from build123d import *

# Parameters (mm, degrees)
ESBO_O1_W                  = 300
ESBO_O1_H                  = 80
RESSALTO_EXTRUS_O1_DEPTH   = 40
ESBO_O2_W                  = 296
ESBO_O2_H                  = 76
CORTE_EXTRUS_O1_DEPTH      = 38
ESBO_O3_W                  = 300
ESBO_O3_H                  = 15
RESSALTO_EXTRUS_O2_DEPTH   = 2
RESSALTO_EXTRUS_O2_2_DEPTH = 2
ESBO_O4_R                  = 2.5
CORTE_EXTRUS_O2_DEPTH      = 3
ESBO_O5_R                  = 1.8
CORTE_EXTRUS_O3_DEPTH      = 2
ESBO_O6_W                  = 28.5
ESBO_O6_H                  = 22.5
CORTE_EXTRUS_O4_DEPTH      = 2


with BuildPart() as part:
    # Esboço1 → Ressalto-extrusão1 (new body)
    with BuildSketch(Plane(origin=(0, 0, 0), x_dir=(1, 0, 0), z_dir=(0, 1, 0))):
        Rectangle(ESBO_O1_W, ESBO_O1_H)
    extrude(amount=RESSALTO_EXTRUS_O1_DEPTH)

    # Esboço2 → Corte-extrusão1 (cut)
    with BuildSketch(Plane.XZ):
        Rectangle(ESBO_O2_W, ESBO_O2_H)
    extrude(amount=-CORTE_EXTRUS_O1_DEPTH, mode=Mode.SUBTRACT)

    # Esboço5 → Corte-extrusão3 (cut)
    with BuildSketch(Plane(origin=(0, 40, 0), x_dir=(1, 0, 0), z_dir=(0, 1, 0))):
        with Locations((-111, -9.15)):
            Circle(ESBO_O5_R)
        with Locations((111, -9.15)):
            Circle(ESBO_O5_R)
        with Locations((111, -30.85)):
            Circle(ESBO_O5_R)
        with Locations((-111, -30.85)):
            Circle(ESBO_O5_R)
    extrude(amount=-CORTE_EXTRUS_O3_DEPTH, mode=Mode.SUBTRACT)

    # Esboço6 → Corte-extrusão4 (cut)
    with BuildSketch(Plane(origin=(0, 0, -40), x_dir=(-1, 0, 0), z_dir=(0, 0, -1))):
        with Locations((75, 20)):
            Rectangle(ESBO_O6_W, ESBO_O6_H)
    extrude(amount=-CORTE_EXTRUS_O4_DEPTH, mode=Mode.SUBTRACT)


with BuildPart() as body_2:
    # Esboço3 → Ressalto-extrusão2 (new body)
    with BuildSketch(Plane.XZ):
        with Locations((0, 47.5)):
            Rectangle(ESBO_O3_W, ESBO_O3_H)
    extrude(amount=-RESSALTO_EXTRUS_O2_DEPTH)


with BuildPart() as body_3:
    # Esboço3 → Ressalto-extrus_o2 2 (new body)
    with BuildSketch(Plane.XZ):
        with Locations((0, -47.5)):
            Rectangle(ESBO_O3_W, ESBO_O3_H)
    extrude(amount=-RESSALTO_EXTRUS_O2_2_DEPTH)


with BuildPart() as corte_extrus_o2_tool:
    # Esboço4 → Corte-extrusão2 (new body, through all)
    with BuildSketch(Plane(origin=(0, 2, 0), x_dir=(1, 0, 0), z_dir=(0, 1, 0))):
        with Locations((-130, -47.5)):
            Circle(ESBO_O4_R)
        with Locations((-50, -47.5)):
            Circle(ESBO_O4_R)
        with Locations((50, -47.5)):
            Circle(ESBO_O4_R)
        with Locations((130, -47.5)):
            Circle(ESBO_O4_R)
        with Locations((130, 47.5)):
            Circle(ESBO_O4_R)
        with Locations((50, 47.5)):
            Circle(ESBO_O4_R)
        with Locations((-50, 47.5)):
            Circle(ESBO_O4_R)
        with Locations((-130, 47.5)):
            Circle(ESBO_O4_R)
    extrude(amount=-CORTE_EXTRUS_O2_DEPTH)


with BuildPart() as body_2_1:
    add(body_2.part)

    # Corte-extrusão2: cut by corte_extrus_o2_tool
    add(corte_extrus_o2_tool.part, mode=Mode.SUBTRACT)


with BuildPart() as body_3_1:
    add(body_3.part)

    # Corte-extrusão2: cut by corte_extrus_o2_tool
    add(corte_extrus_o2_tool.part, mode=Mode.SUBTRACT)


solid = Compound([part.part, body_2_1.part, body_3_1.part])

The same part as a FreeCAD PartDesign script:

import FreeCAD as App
import Part
import Sketcher

doc = App.newDocument("Part")
body = doc.addObject("PartDesign::Body", "Body")

sketch1 = doc.addObject("Sketcher::SketchObject", "Sketch")
body.addObject(sketch1)
sketch1.AttachmentSupport = (doc.XZ_Plane, [""])
sketch1.MapMode = "FlatFace"
sketch1.addGeometry(Part.LineSegment(App.Vector(-150, -40, 0), App.Vector(-150, 40, 0)), False)
sketch1.addGeometry(Part.LineSegment(App.Vector(-150, 40, 0), App.Vector(150, 40, 0)), False)
sketch1.addGeometry(Part.LineSegment(App.Vector(150, 40, 0), App.Vector(150, -40, 0)), False)
sketch1.addGeometry(Part.LineSegment(App.Vector(150, -40, 0), App.Vector(-150, -40, 0)), False)
sketch1.addConstraint(Sketcher.Constraint("Coincident", 0, 2, 1, 1))
sketch1.addConstraint(Sketcher.Constraint("Coincident", 1, 2, 2, 1))
sketch1.addConstraint(Sketcher.Constraint("Coincident", 2, 2, 3, 1))
sketch1.addConstraint(Sketcher.Constraint("Coincident", 3, 2, 0, 1))
sketch1.addConstraint(Sketcher.Constraint("Vertical", 0))
sketch1.addConstraint(Sketcher.Constraint("Horizontal", 1))
sketch1.addConstraint(Sketcher.Constraint("Vertical", 2))
sketch1.addConstraint(Sketcher.Constraint("Horizontal", 3))
sketch1.addConstraint(Sketcher.Constraint("Symmetric", 0, 2, 2, 2, -1, 1))
sketch1.addConstraint(Sketcher.Constraint("DistanceX", 1, 1, 1, 2, 300.0))
sketch1.addConstraint(Sketcher.Constraint("DistanceY", 0, 1, 0, 2, 80.0))
pad1 = doc.addObject("PartDesign::Pad", "Pad")
body.addObject(pad1)
pad1.Profile = sketch1
pad1.Length = 40
pad1.Reversed = True

sketch2 = doc.addObject("Sketcher::SketchObject", "Sketch001")
body.addObject(sketch2)
sketch2.AttachmentSupport = (doc.XZ_Plane, [""])
sketch2.MapMode = "FlatFace"
sketch2.addGeometry(Part.LineSegment(App.Vector(-148, 38, 0), App.Vector(-148, -38, 0)), False)
sketch2.addGeometry(Part.LineSegment(App.Vector(-148, -38, 0), App.Vector(148, -38, 0)), False)
sketch2.addGeometry(Part.LineSegment(App.Vector(148, -38, 0), App.Vector(148, 38, 0)), False)
sketch2.addGeometry(Part.LineSegment(App.Vector(148, 38, 0), App.Vector(-148, 38, 0)), False)
sketch2.addConstraint(Sketcher.Constraint("Coincident", 0, 2, 1, 1))
sketch2.addConstraint(Sketcher.Constraint("Coincident", 1, 2, 2, 1))
sketch2.addConstraint(Sketcher.Constraint("Coincident", 2, 2, 3, 1))
sketch2.addConstraint(Sketcher.Constraint("Coincident", 3, 2, 0, 1))
sketch2.addConstraint(Sketcher.Constraint("Vertical", 0))
sketch2.addConstraint(Sketcher.Constraint("Horizontal", 1))
sketch2.addConstraint(Sketcher.Constraint("Vertical", 2))
sketch2.addConstraint(Sketcher.Constraint("Horizontal", 3))
sketch2.addConstraint(Sketcher.Constraint("Symmetric", 0, 2, 2, 2, -1, 1))
sketch2.addConstraint(Sketcher.Constraint("DistanceX", 1, 1, 1, 2, 296.0))
sketch2.addConstraint(Sketcher.Constraint("DistanceY", 0, 2, 0, 1, 76.0))
pocket1 = doc.addObject("PartDesign::Pocket", "Pocket")
body.addObject(pocket1)
pocket1.Profile = sketch2
pocket1.Length = 38

sketch3 = doc.addObject("Sketcher::SketchObject", "Sketch002")
body.addObject(sketch3)
sketch3.AttachmentSupport = (doc.XZ_Plane, [""])
sketch3.MapMode = "FlatFace"
sketch3.AttachmentOffset = App.Placement(App.Vector(0, 0, -40), App.Rotation())
sketch3.addGeometry(Part.Circle(App.Vector(-111, 9.2, 0), App.Vector(0, 0, 1), 1.8), False)
sketch3.addGeometry(Part.Circle(App.Vector(111, 9.2, 0), App.Vector(0, 0, 1), 1.8), False)
sketch3.addGeometry(Part.Circle(App.Vector(111, 30.9, 0), App.Vector(0, 0, 1), 1.8), False)
sketch3.addGeometry(Part.Circle(App.Vector(-111, 30.9, 0), App.Vector(0, 0, 1), 1.8), False)
sketch3.addConstraint(Sketcher.Constraint("Equal", 0, 1))
sketch3.addConstraint(Sketcher.Constraint("Equal", 1, 2))
sketch3.addConstraint(Sketcher.Constraint("Equal", 2, 3))
sketch3.addConstraint(Sketcher.Constraint("Symmetric", 0, 3, 1, 3, -2))
sketch3.addConstraint(Sketcher.Constraint("Symmetric", 2, 3, 3, 3, -2))
sketch3.addConstraint(Sketcher.Constraint("Vertical", 1, 3, 2, 3))
sketch3.addConstraint(Sketcher.Constraint("Diameter", 0, 3.6))
sketch3.addConstraint(Sketcher.Constraint("DistanceX", 0, 3, -1, 1, 111.0))
sketch3.addConstraint(Sketcher.Constraint("DistanceY", 1, 3, 2, 3, 21.7))
sketch3.addConstraint(Sketcher.Constraint("DistanceY", -1, 1, 0, 3, 9.15))
pocket2 = doc.addObject("PartDesign::Pocket", "Pocket001")
body.addObject(pocket2)
pocket2.Profile = sketch3
pocket2.Length = 2
pocket2.Reversed = True

sketch4 = doc.addObject("Sketcher::SketchObject", "Sketch003")
body.addObject(sketch4)
sketch4.AttachmentSupport = (doc.XY_Plane, [""])
sketch4.MapMode = "FlatFace"
sketch4.AttachmentOffset = App.Placement(App.Vector(0, 0, -40), App.Rotation())
sketch4.addGeometry(Part.LineSegment(App.Vector(-61, 31, 0), App.Vector(-61, 9, 0)), False)
sketch4.addGeometry(Part.LineSegment(App.Vector(-61, 9, 0), App.Vector(-89, 9, 0)), False)
sketch4.addGeometry(Part.LineSegment(App.Vector(-89, 9, 0), App.Vector(-89, 31, 0)), False)
sketch4.addGeometry(Part.LineSegment(App.Vector(-89, 31, 0), App.Vector(-61, 31, 0)), False)
sketch4.addConstraint(Sketcher.Constraint("Coincident", 0, 2, 1, 1))
sketch4.addConstraint(Sketcher.Constraint("Coincident", 1, 2, 2, 1))
sketch4.addConstraint(Sketcher.Constraint("Coincident", 2, 2, 3, 1))
sketch4.addConstraint(Sketcher.Constraint("Coincident", 3, 2, 0, 1))
sketch4.addConstraint(Sketcher.Constraint("Vertical", 0))
sketch4.addConstraint(Sketcher.Constraint("Horizontal", 1))
sketch4.addConstraint(Sketcher.Constraint("Vertical", 2))
sketch4.addConstraint(Sketcher.Constraint("Horizontal", 3))
sketch4.addConstraint(Sketcher.Constraint("DistanceX", 1, 2, 1, 1, 28.5))
sketch4.addConstraint(Sketcher.Constraint("DistanceY", 0, 2, 0, 1, 22.5))
sketch4.addConstraint(Sketcher.Constraint("DistanceX", 0, 2, -1, 1, 60.75))
sketch4.addConstraint(Sketcher.Constraint("DistanceY", -1, 1, 0, 2, 8.75))
pocket3 = doc.addObject("PartDesign::Pocket", "Pocket002")
body.addObject(pocket3)
pocket3.Profile = sketch4
pocket3.Length = 2
pocket3.Reversed = True
body2 = doc.addObject("PartDesign::Body", "Body001")

sketch5 = doc.addObject("Sketcher::SketchObject", "Sketch004")
body2.addObject(sketch5)
sketch5.AttachmentSupport = (doc.getObject("XZ_Plane001"), [""])
sketch5.MapMode = "FlatFace"
sketch5.addGeometry(Part.LineSegment(App.Vector(-150, 55, 0), App.Vector(-150, 40, 0)), False)
sketch5.addGeometry(Part.LineSegment(App.Vector(-150, 40, 0), App.Vector(150, 40, 0)), False)
sketch5.addGeometry(Part.LineSegment(App.Vector(150, 40, 0), App.Vector(150, 55, 0)), False)
sketch5.addGeometry(Part.LineSegment(App.Vector(150, 55, 0), App.Vector(-150, 55, 0)), False)
sketch5.addConstraint(Sketcher.Constraint("Coincident", 0, 2, 1, 1))
sketch5.addConstraint(Sketcher.Constraint("Coincident", 1, 2, 2, 1))
sketch5.addConstraint(Sketcher.Constraint("Coincident", 2, 2, 3, 1))
sketch5.addConstraint(Sketcher.Constraint("Coincident", 3, 2, 0, 1))
sketch5.addConstraint(Sketcher.Constraint("Vertical", 0))
sketch5.addConstraint(Sketcher.Constraint("Horizontal", 1))
sketch5.addConstraint(Sketcher.Constraint("Vertical", 2))
sketch5.addConstraint(Sketcher.Constraint("Horizontal", 3))
sketch5.addConstraint(Sketcher.Constraint("DistanceX", 1, 1, 1, 2, 300.0))
sketch5.addConstraint(Sketcher.Constraint("DistanceY", 0, 2, 0, 1, 15.0))
sketch5.addConstraint(Sketcher.Constraint("DistanceX", 0, 2, -1, 1, 150.0))
sketch5.addConstraint(Sketcher.Constraint("DistanceY", -1, 1, 0, 2, 40.0))
pad2 = doc.addObject("PartDesign::Pad", "Pad001")
body2.addObject(pad2)
pad2.Profile = sketch5
pad2.Length = 2
pad2.Reversed = True
body3 = doc.addObject("PartDesign::Body", "Body002")

sketch6 = doc.addObject("Sketcher::SketchObject", "Sketch005")
body3.addObject(sketch6)
sketch6.AttachmentSupport = (doc.getObject("XZ_Plane002"), [""])
sketch6.MapMode = "FlatFace"
sketch6.addGeometry(Part.LineSegment(App.Vector(-150, -40, 0), App.Vector(-150, -55, 0)), False)
sketch6.addGeometry(Part.LineSegment(App.Vector(-150, -55, 0), App.Vector(150, -55, 0)), False)
sketch6.addGeometry(Part.LineSegment(App.Vector(150, -55, 0), App.Vector(150, -40, 0)), False)
sketch6.addGeometry(Part.LineSegment(App.Vector(150, -40, 0), App.Vector(-150, -40, 0)), False)
sketch6.addConstraint(Sketcher.Constraint("Coincident", 0, 2, 1, 1))
sketch6.addConstraint(Sketcher.Constraint("Coincident", 1, 2, 2, 1))
sketch6.addConstraint(Sketcher.Constraint("Coincident", 2, 2, 3, 1))
sketch6.addConstraint(Sketcher.Constraint("Coincident", 3, 2, 0, 1))
sketch6.addConstraint(Sketcher.Constraint("Vertical", 0))
sketch6.addConstraint(Sketcher.Constraint("Horizontal", 1))
sketch6.addConstraint(Sketcher.Constraint("Vertical", 2))
sketch6.addConstraint(Sketcher.Constraint("Horizontal", 3))
sketch6.addConstraint(Sketcher.Constraint("DistanceX", 1, 1, 1, 2, 300.0))
sketch6.addConstraint(Sketcher.Constraint("DistanceY", 0, 2, 0, 1, 15.0))
sketch6.addConstraint(Sketcher.Constraint("DistanceX", 0, 2, -1, 1, 150.0))
sketch6.addConstraint(Sketcher.Constraint("DistanceY", 0, 2, -1, 1, 55.0))
pad3 = doc.addObject("PartDesign::Pad", "Pad002")
body3.addObject(pad3)
pad3.Profile = sketch6
pad3.Length = 2
pad3.Reversed = True
body4 = doc.addObject("PartDesign::Body", "Body003")
body4.AllowCompound = True

sketch7 = doc.addObject("Sketcher::SketchObject", "Sketch006")
body4.addObject(sketch7)
sketch7.AttachmentSupport = (doc.getObject("XZ_Plane003"), [""])
sketch7.MapMode = "FlatFace"
sketch7.AttachmentOffset = App.Placement(App.Vector(0, 0, -2), App.Rotation())
sketch7.addGeometry(Part.Circle(App.Vector(-130, 47.5, 0), App.Vector(0, 0, 1), 2.5), False)
sketch7.addGeometry(Part.Circle(App.Vector(-50, 47.5, 0), App.Vector(0, 0, 1), 2.5), False)
sketch7.addGeometry(Part.Circle(App.Vector(50, 47.5, 0), App.Vector(0, 0, 1), 2.5), False)
sketch7.addGeometry(Part.Circle(App.Vector(130, 47.5, 0), App.Vector(0, 0, 1), 2.5), False)
sketch7.addGeometry(Part.Circle(App.Vector(130, -47.5, 0), App.Vector(0, 0, 1), 2.5), False)
sketch7.addGeometry(Part.Circle(App.Vector(50, -47.5, 0), App.Vector(0, 0, 1), 2.5), False)
sketch7.addGeometry(Part.Circle(App.Vector(-50, -47.5, 0), App.Vector(0, 0, 1), 2.5), False)
sketch7.addGeometry(Part.Circle(App.Vector(-130, -47.5, 0), App.Vector(0, 0, 1), 2.5), False)
sketch7.addConstraint(Sketcher.Constraint("Equal", 0, 1))
sketch7.addConstraint(Sketcher.Constraint("Equal", 1, 2))
sketch7.addConstraint(Sketcher.Constraint("Equal", 2, 3))
sketch7.addConstraint(Sketcher.Constraint("Equal", 3, 4))
sketch7.addConstraint(Sketcher.Constraint("Equal", 4, 5))
sketch7.addConstraint(Sketcher.Constraint("Equal", 5, 6))
sketch7.addConstraint(Sketcher.Constraint("Equal", 6, 7))
sketch7.addConstraint(Sketcher.Constraint("Symmetric", 0, 3, 4, 3, -1, 1))
sketch7.addConstraint(Sketcher.Constraint("Symmetric", 1, 3, 5, 3, -1, 1))
sketch7.addConstraint(Sketcher.Constraint("Symmetric", 2, 3, 6, 3, -1, 1))
sketch7.addConstraint(Sketcher.Constraint("Symmetric", 3, 3, 7, 3, -1, 1))
sketch7.addConstraint(Sketcher.Constraint("Symmetric", 1, 3, 2, 3, -2))
sketch7.addConstraint(Sketcher.Constraint("Symmetric", 0, 3, 3, 3, -2))
sketch7.addConstraint(Sketcher.Constraint("Horizontal", 0, 3, 1, 3))
sketch7.addConstraint(Sketcher.Constraint("Diameter", 0, 5.0))
sketch7.addConstraint(Sketcher.Constraint("DistanceX", 0, 3, -1, 1, 130.0))
sketch7.addConstraint(Sketcher.Constraint("DistanceX", 1, 3, -1, 1, 50.0))
sketch7.addConstraint(Sketcher.Constraint("DistanceY", 4, 3, 3, 3, 95.0))
pad4 = doc.addObject("PartDesign::Pad", "Pad003")
body4.addObject(pad4)
pad4.Profile = sketch7
pad4.Length = 3
doc.recompute()

body5 = doc.addObject("PartDesign::Body", "Body004")
body5.BaseFeature = body4
boolean = doc.addObject("PartDesign::Boolean", "Boolean")
body2.addObject(boolean)
boolean.Type = "Cut"
boolean.addObjects([body5])
doc.recompute()

boolean2 = doc.addObject("PartDesign::Boolean", "Boolean001")
body3.addObject(boolean2)
boolean2.Type = "Cut"
boolean2.addObjects([body4])

doc.recompute()
